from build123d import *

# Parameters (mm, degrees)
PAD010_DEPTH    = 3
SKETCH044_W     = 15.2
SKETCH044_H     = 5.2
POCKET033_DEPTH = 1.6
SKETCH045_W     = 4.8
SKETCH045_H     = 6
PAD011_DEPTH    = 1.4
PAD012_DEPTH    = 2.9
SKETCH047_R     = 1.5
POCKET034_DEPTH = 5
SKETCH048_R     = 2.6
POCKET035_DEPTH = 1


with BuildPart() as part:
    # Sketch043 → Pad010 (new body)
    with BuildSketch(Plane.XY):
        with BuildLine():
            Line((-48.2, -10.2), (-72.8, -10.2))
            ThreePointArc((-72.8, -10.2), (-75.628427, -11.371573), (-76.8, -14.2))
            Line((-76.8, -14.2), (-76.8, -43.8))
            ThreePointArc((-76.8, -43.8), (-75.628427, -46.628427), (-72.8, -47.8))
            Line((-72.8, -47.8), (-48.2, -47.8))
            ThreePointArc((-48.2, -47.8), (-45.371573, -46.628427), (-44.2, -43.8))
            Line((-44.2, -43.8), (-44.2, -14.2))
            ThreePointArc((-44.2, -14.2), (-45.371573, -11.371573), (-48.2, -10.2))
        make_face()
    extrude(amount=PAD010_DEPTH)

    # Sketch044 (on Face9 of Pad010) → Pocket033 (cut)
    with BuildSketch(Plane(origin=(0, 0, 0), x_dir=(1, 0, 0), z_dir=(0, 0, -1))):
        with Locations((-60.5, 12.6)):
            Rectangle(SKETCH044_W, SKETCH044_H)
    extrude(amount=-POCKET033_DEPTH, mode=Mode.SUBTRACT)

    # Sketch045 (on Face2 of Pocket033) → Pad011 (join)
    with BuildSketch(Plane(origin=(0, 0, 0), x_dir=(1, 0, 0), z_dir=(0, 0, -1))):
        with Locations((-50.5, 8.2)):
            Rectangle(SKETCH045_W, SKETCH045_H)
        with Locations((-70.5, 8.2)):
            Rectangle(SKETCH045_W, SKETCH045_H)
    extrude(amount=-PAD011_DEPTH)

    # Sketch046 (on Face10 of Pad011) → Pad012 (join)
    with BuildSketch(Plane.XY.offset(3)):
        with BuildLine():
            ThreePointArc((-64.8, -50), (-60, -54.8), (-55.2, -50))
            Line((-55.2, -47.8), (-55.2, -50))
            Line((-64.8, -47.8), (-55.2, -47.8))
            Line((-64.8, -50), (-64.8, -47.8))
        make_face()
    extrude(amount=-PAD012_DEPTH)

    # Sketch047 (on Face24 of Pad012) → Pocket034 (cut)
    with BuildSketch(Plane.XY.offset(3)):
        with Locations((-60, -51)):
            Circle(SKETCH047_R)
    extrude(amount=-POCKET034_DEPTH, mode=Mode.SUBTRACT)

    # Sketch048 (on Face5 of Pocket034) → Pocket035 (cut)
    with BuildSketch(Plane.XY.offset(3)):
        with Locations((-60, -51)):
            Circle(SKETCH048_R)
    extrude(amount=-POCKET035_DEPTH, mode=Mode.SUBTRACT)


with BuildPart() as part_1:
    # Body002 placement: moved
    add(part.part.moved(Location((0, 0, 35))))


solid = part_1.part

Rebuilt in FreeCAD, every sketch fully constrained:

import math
import FreeCAD as App
import Part
import Sketcher

V = App.Vector


def add_polygon(sketch, points):
    """Adds a closed chain of lines whose ends are joined by coincident constraints."""
    first, n = sketch.GeometryCount, len(points)
    for a, b in zip(points, points[1:] + points[:1]):
        sketch.addGeometry(Part.LineSegment(App.Vector(*a, 0), App.Vector(*b, 0)), False)
    for i in range(n):
        sketch.addConstraint(Sketcher.Constraint("Coincident", first + i, 2, first + (i + 1) % n, 1))

doc = App.newDocument("Part")
body = doc.addObject("PartDesign::Body", "Body")

sketch1 = body.newObject("Sketcher::SketchObject", "Sketch")
sketch1.AttachmentSupport = (doc.getObject("XY_Plane"), [""])
sketch1.MapMode = "FlatFace"
sketch1.addGeometry(Part.LineSegment(V(-48.2, -10.2, 0), V(-72.8, -10.2, 0)), False)
sketch1.addGeometry(Part.ArcOfCircle(Part.Circle(V(-72.8, -14.2, 0), V(0, 0, 1), 4), math.radians(90), math.radians(180)), False)
sketch1.addGeometry(Part.LineSegment(V(-76.8, -14.2, 0), V(-76.8, -43.8, 0)), False)
sketch1.addGeometry(Part.ArcOfCircle(Part.Circle(V(-72.8, -43.8, 0), V(0, 0, 1), 4), math.radians(-180), math.radians(-90)), False)
sketch1.addGeometry(Part.LineSegment(V(-72.8, -47.8, 0), V(-48.2, -47.8, 0)), False)
sketch1.addGeometry(Part.ArcOfCircle(Part.Circle(V(-48.2, -43.8, 0), V(0, 0, 1), 4), math.radians(-90), math.radians(0)), False)
sketch1.addGeometry(Part.LineSegment(V(-44.2, -43.8, 0), V(-44.2, -14.2, 0)), False)
sketch1.addGeometry(Part.ArcOfCircle(Part.Circle(V(-48.2, -14.2, 0), V(0, 0, 1), 4), math.radians(0), math.radians(90)), False)
sketch1.addConstraint(Sketcher.Constraint("Tangent", 0, 2, 1, 1))
sketch1.addConstraint(Sketcher.Constraint("Tangent", 1, 2, 2, 1))
sketch1.addConstraint(Sketcher.Constraint("Tangent", 2, 2, 3, 1))
sketch1.addConstraint(Sketcher.Constraint("Tangent", 3, 2, 4, 1))
sketch1.addConstraint(Sketcher.Constraint("Tangent", 4, 2, 5, 1))
sketch1.addConstraint(Sketcher.Constraint("Tangent", 5, 2, 6, 1))
sketch1.addConstraint(Sketcher.Constraint("Tangent", 6, 2, 7, 1))
sketch1.addConstraint(Sketcher.Constraint("Tangent", 7, 2, 0, 1))
sketch1.addConstraint(Sketcher.Constraint("Horizontal", 0))
sketch1.addConstraint(Sketcher.Constraint("Vertical", 2))
sketch1.addConstraint(Sketcher.Constraint("Horizontal", 4))
sketch1.addConstraint(Sketcher.Constraint("Vertical", 6))
sketch1.addConstraint(Sketcher.Constraint("Equal", 1, 3))
sketch1.addConstraint(Sketcher.Constraint("Equal", 3, 5))
sketch1.addConstraint(Sketcher.Constraint("Equal", 5, 7))
sketch1.addConstraint(Sketcher.Constraint("Radius", 1, 4.0))
sketch1.addConstraint(Sketcher.Constraint("DistanceX", 0, 2, 0, 1, 24.6))
sketch1.addConstraint(Sketcher.Constraint("DistanceY", 2, 2, 2, 1, 29.6))
sketch1.addConstraint(Sketcher.Constraint("DistanceX", 1, 3, -1, 1, 72.8))
sketch1.addConstraint(Sketcher.Constraint("DistanceY", 1, 3, -1, 1, 14.2))
pad1 = body.newObject("PartDesign::Pad", "Pad")
pad1.Profile = sketch1
pad1.Length = 3

sketch2 = body.newObject("Sketcher::SketchObject", "Sketch001")
sketch2.AttachmentSupport = (doc.getObject("XY_Plane"), [""])
sketch2.MapMode = "FlatFace"
add_polygon(sketch2, [(-68, -15), (-68, -10), (-53, -10), (-53, -15)])
sketch2.addConstraint(Sketcher.Constraint("Vertical", 0))
sketch2.addConstraint(Sketcher.Constraint("Horizontal", 1))
sketch2.addConstraint(Sketcher.Constraint("Vertical", 2))
sketch2.addConstraint(Sketcher.Constraint("Horizontal", 3))
sketch2.addConstraint(Sketcher.Constraint("DistanceX", 1, 1, 1, 2, 15.2))
sketch2.addConstraint(Sketcher.Constraint("DistanceY", 0, 1, 0, 2, 5.2))
sketch2.addConstraint(Sketcher.Constraint("DistanceY", 0, 2, -1, 1, 10.0))
sketch2.addConstraint(Sketcher.Constraint("DistanceX", 0, 2, -1, 1, 68.1))
pocket1 = body.newObject("PartDesign::Pocket", "Pocket")
pocket1.Profile = sketch2
pocket1.Length = 1.6
pocket1.Reversed = True

sketch3 = body.newObject("Sketcher::SketchObject", "Sketch002")
sketch3.AttachmentSupport = (doc.getObject("XY_Plane"), [""])
sketch3.MapMode = "FlatFace"
add_polygon(sketch3, [(-52.9, -11.2), (-52.9, -5.2), (-48.1, -5.2), (-48.1, -11.2)])
add_polygon(sketch3, [(-72.9, -11.2), (-72.9, -5.2), (-68.1, -5.2), (-68.1, -11.2)])
sketch3.addConstraint(Sketcher.Constraint("Vertical", 0))
sketch3.addConstraint(Sketcher.Constraint("Horizontal", 1))
sketch3.addConstraint(Sketcher.Constraint("Vertical", 2))
sketch3.addConstraint(Sketcher.Constraint("Horizontal", 3))
sketch3.addConstraint(Sketcher.Constraint("Vertical", 4))
sketch3.addConstraint(Sketcher.Constraint("Horizontal", 5))
sketch3.addConstraint(Sketcher.Constraint("Vertical", 6))
sketch3.addConstraint(Sketcher.Constraint("Horizontal", 7))
sketch3.addConstraint(Sketcher.Constraint("Horizontal", 1, 2, 4, 2))
sketch3.addConstraint(Sketcher.Constraint("Horizontal", 3, 2, 6, 2))
sketch3.addConstraint(Sketcher.Constraint("Equal", 3, 5))
sketch3.addConstraint(Sketcher.Constraint("DistanceY", 0, 1, 0, 2, 6.0))
sketch3.addConstraint(Sketcher.Constraint("DistanceX", 1, 1, 1, 2, 4.8))
sketch3.addConstraint(Sketcher.Constraint("DistanceX", 4, 2, 0, 2, 20.0))
sketch3.addConstraint(Sketcher.Constraint("DistanceX", 0, 2, -1, 1, 52.9))
sketch3.addConstraint(Sketcher.Constraint("DistanceY", 0, 2, -1, 1, 5.2))
pad2 = body.newObject("PartDesign::Pad", "Pad001")
pad2.Profile = sketch3
pad2.Length = 1.4

sketch4 = body.newObject("Sketcher::SketchObject", "Sketch003")
sketch4.AttachmentSupport = (doc.getObject("XY_Plane"), [""])
sketch4.MapMode = "FlatFace"
sketch4.AttachmentOffset = App.Placement(V(0, 0, 3), App.Rotation())
sketch4.addGeometry(Part.ArcOfCircle(Part.Circle(V(-60, -50, 0), V(0, 0, 1), 4.8), math.radians(180), math.radians(360)), False)
sketch4.addGeometry(Part.LineSegment(V(-55.2, -50, 0), V(-55.2, -47.8, 0)), False)
sketch4.addGeometry(Part.LineSegment(V(-55.2, -47.8, 0), V(-64.8, -47.8, 0)), False)
sketch4.addGeometry(Part.LineSegment(V(-64.8, -47.8, 0), V(-64.8, -50, 0)), False)
sketch4.addConstraint(Sketcher.Constraint("Tangent", 0, 2, 1, 1))
sketch4.addConstraint(Sketcher.Constraint("Coincident", 1, 2, 2, 1))
sketch4.addConstraint(Sketcher.Constraint("Coincident", 2, 2, 3, 1))
sketch4.addConstraint(Sketcher.Constraint("Tangent", 3, 2, 0, 1))
sketch4.addConstraint(Sketcher.Constraint("Vertical", 1))
sketch4.addConstraint(Sketcher.Constraint("Horizontal", 2))
sketch4.addConstraint(Sketcher.Constraint("Vertical", 3))
sketch4.addConstraint(Sketcher.Constraint("Radius", 0, 4.8))
sketch4.addConstraint(Sketcher.Constraint("DistanceY", 1, 1, 1, 2, 2.2))
sketch4.addConstraint(Sketcher.Constraint("DistanceX", 0, 3, -1, 1, 60.0))
sketch4.addConstraint(Sketcher.Constraint("DistanceY", 0, 3, -1, 1, 50.0))
pad3 = body.newObject("PartDesign::Pad", "Pad002")
pad3.Profile = sketch4
pad3.Length = 2.9
pad3.Reversed = True

sketch5 = body.newObject("Sketcher::SketchObject", "Sketch004")
sketch5.AttachmentSupport = (doc.getObject("XY_Plane"), [""])
sketch5.MapMode = "FlatFace"
sketch5.AttachmentOffset = App.Placement(V(0, 0, 3), App.Rotation())
sketch5.addGeometry(Part.Circle(V(-60, -51, 0), V(0, 0, 1), 1.5), False)
sketch5.addConstraint(Sketcher.Constraint("Diameter", 0, 3.0))
sketch5.addConstraint(Sketcher.Constraint("DistanceX", 0, 3, -1, 1, 60.0))
sketch5.addConstraint(Sketcher.Constraint("DistanceY", 0, 3, -1, 1, 51.0))
pocket2 = body.newObject("PartDesign::Pocket", "Pocket001")
pocket2.Profile = sketch5
pocket2.Length = 5

sketch6 = body.newObject("Sketcher::SketchObject", "Sketch005")
sketch6.AttachmentSupport = (doc.getObject("XY_Plane"), [""])
sketch6.MapMode = "FlatFace"
sketch6.AttachmentOffset = App.Placement(V(0, 0, 3), App.Rotation())
sketch6.addGeometry(Part.Circle(V(-60, -51, 0), V(0, 0, 1), 2.6), False)
sketch6.addConstraint(Sketcher.Constraint("Diameter", 0, 5.2))
sketch6.addConstraint(Sketcher.Constraint("DistanceX", 0, 3, -1, 1, 60.0))
sketch6.addConstraint(Sketcher.Constraint("DistanceY", 0, 3, -1, 1, 51.0))
pocket3 = body.newObject("PartDesign::Pocket", "Pocket002")
pocket3.Profile = sketch6
pocket3.Length = 1
body2 = doc.addObject("PartDesign::Body", "Body001")
doc.recompute()

body.Placement = App.Placement(V(0, 0, 35), App.Rotation(V(0, 0, 1), 0))
boolean = body2.newObject("PartDesign::Boolean", "Boolean")
boolean.Type = "Fuse"
boolean.addObjects([body])

doc.recompute()
